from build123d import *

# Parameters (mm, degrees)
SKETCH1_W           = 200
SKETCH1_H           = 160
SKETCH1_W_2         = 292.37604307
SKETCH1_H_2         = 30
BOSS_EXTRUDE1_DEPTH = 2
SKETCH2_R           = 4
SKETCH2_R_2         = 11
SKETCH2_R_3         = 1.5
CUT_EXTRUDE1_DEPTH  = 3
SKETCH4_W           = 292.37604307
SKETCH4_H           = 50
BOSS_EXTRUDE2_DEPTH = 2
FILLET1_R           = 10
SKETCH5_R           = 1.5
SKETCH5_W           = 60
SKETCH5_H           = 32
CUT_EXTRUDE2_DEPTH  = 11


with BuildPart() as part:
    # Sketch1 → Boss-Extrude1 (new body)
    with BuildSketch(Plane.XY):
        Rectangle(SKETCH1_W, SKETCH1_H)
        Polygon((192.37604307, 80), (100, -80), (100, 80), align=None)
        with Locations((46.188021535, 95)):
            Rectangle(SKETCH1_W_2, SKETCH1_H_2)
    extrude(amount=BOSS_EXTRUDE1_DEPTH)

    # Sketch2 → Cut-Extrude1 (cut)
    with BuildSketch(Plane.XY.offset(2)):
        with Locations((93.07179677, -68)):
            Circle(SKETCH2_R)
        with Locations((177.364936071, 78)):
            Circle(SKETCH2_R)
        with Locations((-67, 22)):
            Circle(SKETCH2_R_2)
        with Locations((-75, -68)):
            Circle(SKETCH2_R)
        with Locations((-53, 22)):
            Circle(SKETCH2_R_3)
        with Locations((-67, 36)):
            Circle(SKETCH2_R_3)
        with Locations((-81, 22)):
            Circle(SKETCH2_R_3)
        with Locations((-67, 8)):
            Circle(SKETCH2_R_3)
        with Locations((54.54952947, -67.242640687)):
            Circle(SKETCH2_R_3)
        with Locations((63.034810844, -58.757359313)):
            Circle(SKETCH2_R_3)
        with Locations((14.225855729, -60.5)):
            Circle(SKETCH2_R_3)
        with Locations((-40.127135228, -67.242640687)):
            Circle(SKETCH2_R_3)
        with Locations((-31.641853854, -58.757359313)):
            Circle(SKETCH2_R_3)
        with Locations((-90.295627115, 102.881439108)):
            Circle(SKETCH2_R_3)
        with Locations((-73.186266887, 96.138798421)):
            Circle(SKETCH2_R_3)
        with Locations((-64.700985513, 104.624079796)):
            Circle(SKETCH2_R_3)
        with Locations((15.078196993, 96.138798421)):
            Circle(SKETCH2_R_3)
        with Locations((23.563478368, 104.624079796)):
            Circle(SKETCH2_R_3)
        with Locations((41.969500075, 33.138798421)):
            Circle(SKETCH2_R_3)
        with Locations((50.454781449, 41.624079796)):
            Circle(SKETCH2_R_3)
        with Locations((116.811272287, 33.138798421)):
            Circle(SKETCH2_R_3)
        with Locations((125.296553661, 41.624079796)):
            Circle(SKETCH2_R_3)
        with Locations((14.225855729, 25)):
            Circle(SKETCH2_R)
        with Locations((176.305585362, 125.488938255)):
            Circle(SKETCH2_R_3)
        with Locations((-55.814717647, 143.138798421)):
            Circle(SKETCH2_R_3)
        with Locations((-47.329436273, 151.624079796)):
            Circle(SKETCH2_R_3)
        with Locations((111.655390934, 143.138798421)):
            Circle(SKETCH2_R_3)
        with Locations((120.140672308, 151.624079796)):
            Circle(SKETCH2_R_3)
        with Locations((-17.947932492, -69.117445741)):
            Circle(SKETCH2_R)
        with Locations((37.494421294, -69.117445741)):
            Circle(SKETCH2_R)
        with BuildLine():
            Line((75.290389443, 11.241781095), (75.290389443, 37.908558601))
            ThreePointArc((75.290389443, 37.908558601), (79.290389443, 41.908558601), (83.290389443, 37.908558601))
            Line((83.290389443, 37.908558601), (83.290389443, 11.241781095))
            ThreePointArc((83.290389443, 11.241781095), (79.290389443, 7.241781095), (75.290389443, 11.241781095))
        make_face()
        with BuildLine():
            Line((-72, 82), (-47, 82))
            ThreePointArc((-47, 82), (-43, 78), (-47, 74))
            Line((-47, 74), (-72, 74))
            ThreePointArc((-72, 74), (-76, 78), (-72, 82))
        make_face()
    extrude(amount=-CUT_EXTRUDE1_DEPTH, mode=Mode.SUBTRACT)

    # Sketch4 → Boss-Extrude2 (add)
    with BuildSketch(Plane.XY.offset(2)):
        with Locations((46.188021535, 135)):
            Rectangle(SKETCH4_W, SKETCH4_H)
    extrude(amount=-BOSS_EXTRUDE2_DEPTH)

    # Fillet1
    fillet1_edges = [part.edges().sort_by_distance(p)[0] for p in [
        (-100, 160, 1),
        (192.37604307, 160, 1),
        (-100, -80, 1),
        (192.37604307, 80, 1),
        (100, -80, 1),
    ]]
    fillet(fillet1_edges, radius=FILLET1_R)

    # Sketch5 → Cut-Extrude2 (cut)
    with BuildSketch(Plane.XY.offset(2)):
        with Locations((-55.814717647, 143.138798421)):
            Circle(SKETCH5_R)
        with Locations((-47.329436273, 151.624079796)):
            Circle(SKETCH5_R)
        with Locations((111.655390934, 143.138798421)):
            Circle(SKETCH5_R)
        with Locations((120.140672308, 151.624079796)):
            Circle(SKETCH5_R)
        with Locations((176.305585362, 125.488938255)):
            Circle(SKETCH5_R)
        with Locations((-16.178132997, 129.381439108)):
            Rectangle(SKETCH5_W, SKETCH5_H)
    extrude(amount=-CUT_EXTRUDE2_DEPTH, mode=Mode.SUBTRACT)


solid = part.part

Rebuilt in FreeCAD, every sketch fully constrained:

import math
import FreeCAD as App
import Part
import Sketcher

V = App.Vector
Q = App.Units.Quantity


def edges_at(feature, points):
    """Names of the edges that pass closest to the given points."""
    edges = feature.Shape.Edges
    near = lambda p: min(range(len(edges)), key=lambda i: edges[i].distToShape(Part.Vertex(*p))[0])
    return sorted({f"Edge{near(p) + 1}" for p in points})


def add_polygon(sketch, points):
    """Adds a closed chain of lines whose ends are joined by coincident constraints."""
    first, n = sketch.GeometryCount, len(points)
    for a, b in zip(points, points[1:] + points[:1]):
        sketch.addGeometry(Part.LineSegment(App.Vector(*a, 0), App.Vector(*b, 0)), False)
    for i in range(n):
        sketch.addConstraint(Sketcher.Constraint("Coincident", first + i, 2, first + (i + 1) % n, 1))

doc = App.newDocument("Part")
body = doc.addObject("PartDesign::Body", "Body")

# Sketch on XY plane
sketch1 = doc.addObject("Sketcher::SketchObject", "Sketch")
body.addObject(sketch1)
sketch1.AttachmentSupport = (doc.XY_Plane, [""])
sketch1.MapMode = "FlatFace"
add_polygon(sketch1, [(-100, -80), (100, -80), (192, 80), (192, 110), (-100, 110)])  # lines 0-4
sketch1.addConstraint([
    Sketcher.Constraint("Horizontal", 0),
    Sketcher.Constraint("Vertical", 2),
    Sketcher.Constraint("Horizontal", 3),
    Sketcher.Constraint("Vertical", 4),
    Sketcher.Constraint("DistanceX", 0, 1, 0, 2, Q("200 mm")),
    Sketcher.Constraint("DistanceY", 2, 1, 2, 2, Q("30 mm")),
    Sketcher.Constraint("DistanceY", 4, 2, 4, 1, Q("190 mm")),
    Sketcher.Constraint("Angle", 1, Q("60 deg")),
    Sketcher.Constraint("DistanceX", -1, 1, 0, 2, Q("100 mm")),
    Sketcher.Constraint("DistanceY", 0, 2, -1, 1, Q("80 mm")),
])
pad1 = doc.addObject("PartDesign::Pad", "Pad")
body.addObject(pad1)
pad1.Profile = sketch1
pad1.Length = 2

# Sketch on XY plane
sketch2 = doc.addObject("Sketcher::SketchObject", "Sketch001")
body.addObject(sketch2)
sketch2.AttachmentSupport = (doc.XY_Plane, [""])
sketch2.MapMode = "FlatFace"
sketch2.AttachmentOffset = App.Placement(V(0, 0, 2), App.Rotation())
sketch2.addGeometry([
    Part.Circle(V(93.1, -68, 0), V(0, 0, 1), 4),  # 0
    Part.Circle(V(177.4, 78, 0), V(0, 0, 1), 4),  # 1
    Part.Circle(V(-67, 22, 0), V(0, 0, 1), 11),  # 2
    Part.Circle(V(-75, -68, 0), V(0, 0, 1), 4),  # 3
    Part.Circle(V(-53, 22, 0), V(0, 0, 1), 1.5),  # 4
    Part.Circle(V(-67, 36, 0), V(0, 0, 1), 1.5),  # 5
    Part.Circle(V(-81, 22, 0), V(0, 0, 1), 1.5),  # 6
    Part.Circle(V(-67, 8, 0), V(0, 0, 1), 1.5),  # 7
    Part.Circle(V(54.5, -67.2, 0), V(0, 0, 1), 1.5),  # 8
    Part.Circle(V(63, -58.8, 0), V(0, 0, 1), 1.5),  # 9
    Part.Circle(V(14.2, -60.5, 0), V(0, 0, 1), 1.5),  # 10
    Part.Circle(V(-40.1, -67.2, 0), V(0, 0, 1), 1.5),  # 11
    Part.Circle(V(-31.6, -58.8, 0), V(0, 0, 1), 1.5),  # 12
    Part.Circle(V(-90.3, 102.9, 0), V(0, 0, 1), 1.5),  # 13
    Part.Circle(V(-73.2, 96.1, 0), V(0, 0, 1), 1.5),  # 14
    Part.Circle(V(-64.7, 104.6, 0), V(0, 0, 1), 1.5),  # 15
    Part.Circle(V(15.1, 96.1, 0), V(0, 0, 1), 1.5),  # 16
    Part.Circle(V(23.6, 104.6, 0), V(0, 0, 1), 1.5),  # 17
    Part.Circle(V(42, 33.1, 0), V(0, 0, 1), 1.5),  # 18
    Part.Circle(V(50.5, 41.6, 0), V(0, 0, 1), 1.5),  # 19
    Part.Circle(V(116.8, 33.1, 0), V(0, 0, 1), 1.5),  # 20
    Part.Circle(V(125.3, 41.6, 0), V(0, 0, 1), 1.5),  # 21
    Part.Circle(V(14.2, 25, 0), V(0, 0, 1), 4),  # 22
    Part.Circle(V(176.3, 125.5, 0), V(0, 0, 1), 1.5),  # 23
    Part.Circle(V(-55.8, 143.1, 0), V(0, 0, 1), 1.5),  # 24
    Part.Circle(V(-47.3, 151.6, 0), V(0, 0, 1), 1.5),  # 25
    Part.Circle(V(111.7, 143.1, 0), V(0, 0, 1), 1.5),  # 26
    Part.Circle(V(120.1, 151.6, 0), V(0, 0, 1), 1.5),  # 27
    Part.Circle(V(-17.9, -69.1, 0), V(0, 0, 1), 4),  # 28
    Part.Circle(V(37.5, -69.1, 0), V(0, 0, 1), 4),  # 29
    Part.LineSegment(V(75.3, 37.9, 0), V(75.3, 11.2, 0)),  # 30
    Part.ArcOfCircle(Part.Circle(V(79.3, 11.2, 0), V(0, 0, 1), 4), math.radians(180), math.radians(360)),  # 31
    Part.LineSegment(V(83.3, 11.2, 0), V(83.3, 37.9, 0)),  # 32
    Part.ArcOfCircle(Part.Circle(V(79.3, 37.9, 0), V(0, 0, 1), 4), math.radians(0), math.radians(180)),  # 33
    Part.LineSegment(V(-47, 82, 0), V(-72, 82, 0)),  # 34
    Part.ArcOfCircle(Part.Circle(V(-72, 78, 0), V(0, 0, 1), 4), math.radians(90), math.radians(270)),  # 35
    Part.LineSegment(V(-72, 74, 0), V(-47, 74, 0)),  # 36
    Part.ArcOfCircle(Part.Circle(V(-47, 78, 0), V(0, 0, 1), 4), math.radians(-90), math.radians(90)),  # 37
], False)
sketch2.addConstraint([
    Sketcher.Constraint("Tangent", 30, 2, 31, 1),
    Sketcher.Constraint("Tangent", 31, 2, 32, 1),
    Sketcher.Constraint("Tangent", 32, 2, 33, 1),
    Sketcher.Constraint("Tangent", 33, 2, 30, 1),
    Sketcher.Constraint("Tangent", 34, 2, 35, 1),
    Sketcher.Constraint("Tangent", 35, 2, 36, 1),
    Sketcher.Constraint("Tangent", 36, 2, 37, 1),
    Sketcher.Constraint("Tangent", 37, 2, 34, 1),
    Sketcher.Constraint("Vertical", 30),
    Sketcher.Constraint("Vertical", 32),
    Sketcher.Constraint("Horizontal", 34),
    Sketcher.Constraint("Horizontal", 36),
    Sketcher.Constraint("Equal", 0, 1),
    Sketcher.Constraint("Equal", 1, 3),
    Sketcher.Constraint("Equal", 4, 5),
    Sketcher.Constraint("Equal", 5, 6),
    Sketcher.Constraint("Equal", 6, 7),
    Sketcher.Constraint("Equal", 7, 8),
    Sketcher.Constraint("Equal", 8, 9),
    Sketcher.Constraint("Equal", 9, 10),
    Sketcher.Constraint("Equal", 10, 11),
    Sketcher.Constraint("Equal", 11, 12),
    Sketcher.Constraint("Equal", 12, 13),
    Sketcher.Constraint("Equal", 13, 14),
    Sketcher.Constraint("Equal", 14, 15),
    Sketcher.Constraint("Equal", 15, 16),
    Sketcher.Constraint("Equal", 16, 17),
    Sketcher.Constraint("Equal", 17, 18),
    Sketcher.Constraint("Equal", 18, 19),
    Sketcher.Constraint("Equal", 19, 20),
    Sketcher.Constraint("Equal", 20, 21),
    Sketcher.Constraint("Equal", 3, 22),
    Sketcher.Constraint("Equal", 21, 23),
    Sketcher.Constraint("Equal", 23, 24),
    Sketcher.Constraint("Equal", 24, 25),
    Sketcher.Constraint("Equal", 25, 26),
    Sketcher.Constraint("Equal", 26, 27),
    Sketcher.Constraint("Equal", 22, 28),
    Sketcher.Constraint("Equal", 28, 29),
    Sketcher.Constraint("Equal", 29, 31),
    Sketcher.Constraint("Equal", 33, 35),
    Sketcher.Constraint("Horizontal", 0, 3, 3, 3),
    Sketcher.Constraint("Horizontal", 2, 3, 4, 3),
    Sketcher.Constraint("Horizontal", 4, 3, 6, 3),
    Sketcher.Constraint("Horizontal", 8, 3, 11, 3),
    Sketcher.Constraint("Horizontal", 9, 3, 12, 3),
    Sketcher.Constraint("Horizontal", 14, 3, 16, 3),
    Sketcher.Constraint("Horizontal", 15, 3, 17, 3),
    Sketcher.Constraint("Horizontal", 18, 3, 20, 3),
    Sketcher.Constraint("Horizontal", 19, 3, 21, 3),
    Sketcher.Constraint("Horizontal", 24, 3, 26, 3),
    Sketcher.Constraint("Horizontal", 25, 3, 27, 3),
    Sketcher.Constraint("Horizontal", 28, 3, 29, 3),
    Sketcher.Constraint("Horizontal", 1, 3, 35, 3),
    Sketcher.Constraint("Vertical", 2, 3, 5, 3),
    Sketcher.Constraint("Vertical", 5, 3, 7, 3),
    Sketcher.Constraint("Vertical", 10, 3, 22, 3),
    Sketcher.Constraint("Diameter", 0, Q("8 mm")),
    Sketcher.Constraint("Diameter", 2, Q("22 mm")),
    Sketcher.Constraint("Diameter", 4, Q("3 mm")),
    Sketcher.Constraint("DistanceX", 34, 2, 34, 1, Q("25 mm")),
    Sketcher.Constraint("DistanceY", 0, 3, -1, 1, Q("68 mm")),
    Sketcher.Constraint("DistanceY", -1, 1, 1, 3, Q("78 mm")),
    Sketcher.Constraint("DistanceX", 2, 3, -1, 1, Q("67 mm")),
    Sketcher.Constraint("DistanceY", -1, 1, 2, 3, Q("22 mm")),
    Sketcher.Constraint("DistanceX", 3, 3, -1, 1, Q("75 mm")),
    Sketcher.Constraint("DistanceX", 4, 3, -1, 1, Q("53 mm")),
    Sketcher.Constraint("DistanceY", -1, 1, 5, 3, Q("36 mm")),
    Sketcher.Constraint("DistanceX", 6, 3, -1, 1, Q("81 mm")),
    Sketcher.Constraint("DistanceY", -1, 1, 7, 3, Q("8 mm")),
    Sketcher.Constraint("DistanceY", -1, 1, 22, 3, Q("25 mm")),
    Sketcher.Constraint("DistanceX", 35, 3, -1, 1, Q("72 mm")),
    Sketcher.Constraint("DistanceY", 18, 3, 16, 3, Q("63 mm")),
    Sketcher.Constraint("DistanceY", 19, 3, 17, 3, Q("63 mm")),
    Sketcher.Constraint("DistanceY", 14, 3, 24, 3, Q("47 mm")),
    Sketcher.Constraint("DistanceY", 15, 3, 25, 3, Q("47 mm")),
    Sketcher.Constraint("DistanceY", 10, 3, -1, 1, Q("60.5 mm")),
    Sketcher.Constraint("DistanceY", -1, 1, 14, 3, Q("96.138798 mm")),
    Sketcher.Constraint("DistanceX", -1, 1, 18, 3, Q("41.9695 mm")),
    Sketcher.Constraint("DistanceY", 31, 3, 19, 3, Q("30.382299 mm")),
    Sketcher.Constraint("DistanceY", 30, 2, 30, 1, Q("26.666778 mm")),
    Sketcher.Constraint("DistanceX", -1, 1, 8, 3, Q("54.549529 mm")),
    Sketcher.Constraint("DistanceY", 8, 3, -1, 1, Q("67.242641 mm")),
    Sketcher.Constraint("DistanceX", -1, 1, 9, 3, Q("63.034811 mm")),
    Sketcher.Constraint("DistanceY", 9, 3, -1, 1, Q("58.757359 mm")),
    Sketcher.Constraint("DistanceY", -1, 1, 13, 3, Q("102.881439 mm")),
    Sketcher.Constraint("DistanceY", -1, 1, 15, 3, Q("104.62408 mm")),
    Sketcher.Constraint("DistanceX", -1, 1, 17, 3, Q("23.563478 mm")),
    Sketcher.Constraint("DistanceX", -1, 1, 19, 3, Q("50.454781 mm")),
    Sketcher.Constraint("DistanceY", -1, 1, 23, 3, Q("125.488938 mm")),
    Sketcher.Constraint("DistanceX", -1, 1, 26, 3, Q("111.655391 mm")),
    Sketcher.Constraint("DistanceX", -1, 1, 29, 3, Q("37.494421 mm")),
    Sketcher.Constraint("DistanceX", -1, 1, 31, 3, Q("79.290389 mm")),
    Sketcher.Constraint("DistanceX", 0, 3, 1, 3, Q("84.293139 mm")),
    Sketcher.Constraint("DistanceX", 10, 3, 0, 3, Q("78.845941 mm")),
    Sketcher.Constraint("DistanceX", 11, 3, 10, 3, Q("54.352991 mm")),
    Sketcher.Constraint("DistanceX", 11, 3, 12, 3, Q("8.485281 mm")),
    Sketcher.Constraint("DistanceX", 13, 3, 14, 3, Q("17.10936 mm")),
    Sketcher.Constraint("DistanceX", 14, 3, 15, 3, Q("8.485281 mm")),
    Sketcher.Constraint("DistanceX", 16, 3, 17, 3, Q("8.485281 mm")),
    Sketcher.Constraint("DistanceX", 19, 3, 20, 3, Q("66.356491 mm")),
    Sketcher.Constraint("DistanceX", 20, 3, 21, 3, Q("8.485281 mm")),
    Sketcher.Constraint("DistanceX", 22, 3, 16, 3, Q("0.852341 mm")),
    Sketcher.Constraint("DistanceX", 23, 3, 1, 3, Q("1.059351 mm")),
    Sketcher.Constraint("DistanceX", 14, 3, 24, 3, Q("17.371549 mm")),
    Sketcher.Constraint("DistanceX", 24, 3, 25, 3, Q("8.485281 mm")),
    Sketcher.Constraint("DistanceX", 26, 3, 27, 3, Q("8.485281 mm")),
    Sketcher.Constraint("DistanceX", 12, 3, 28, 3, Q("13.693921 mm")),
    Sketcher.Constraint("DistanceX", 13, 3, -1, 1, Q("90.295627 mm")),
    Sketcher.Constraint("DistanceY", 28, 3, -1, 1, Q("69.117446 mm")),
])
pocket1 = doc.addObject("PartDesign::Pocket", "Pocket")
body.addObject(pocket1)
pocket1.Profile = sketch2
pocket1.Length = 3

# Sketch on XY plane
sketch3 = doc.addObject("Sketcher::SketchObject", "Sketch002")
body.addObject(sketch3)
sketch3.AttachmentSupport = (doc.XY_Plane, [""])
sketch3.MapMode = "FlatFace"
sketch3.AttachmentOffset = App.Placement(V(0, 0, 2), App.Rotation())
add_polygon(sketch3, [(-100, 160), (-100, 110), (192, 110), (192, 160)])  # lines 0-3
sketch3.addConstraint([
    Sketcher.Constraint("Vertical", 0),
    Sketcher.Constraint("Horizontal", 1),
    Sketcher.Constraint("Vertical", 2),
    Sketcher.Constraint("Horizontal", 3),
    Sketcher.Constraint("DistanceY", 0, 2, 0, 1, Q("50 mm")),
    Sketcher.Constraint("DistanceX", 0, 2, -1, 1, Q("100 mm")),
    Sketcher.Constraint("DistanceY", -1, 1, 0, 2, Q("110 mm")),
    Sketcher.Constraint("DistanceX", 1, 1, 1, 2, Q("292.376043 mm")),
])
pad2 = doc.addObject("PartDesign::Pad", "Pad001")
body.addObject(pad2)
pad2.Profile = sketch3
pad2.Length = 2
pad2.Reversed = True
doc.recompute()

fillet = doc.addObject("PartDesign::Fillet", "Fillet")
body.addObject(fillet)
fillet.Base = (pad2, edges_at(pad2, [
    (-100, 160, 1),
    (192.376, 160, 1),
    (-100, -80, 1),
    (192.376, 80, 1),
    (100, -80, 1),
]))
fillet.Radius = 10

# Sketch on XY plane
sketch4 = doc.addObject("Sketcher::SketchObject", "Sketch003")
body.addObject(sketch4)
sketch4.AttachmentSupport = (doc.XY_Plane, [""])
sketch4.MapMode = "FlatFace"
sketch4.AttachmentOffset = App.Placement(V(0, 0, 2), App.Rotation())
sketch4.addGeometry(Part.Circle(V(-55.8, 143.1, 0), V(0, 0, 1), 1.5), False)  # 0
sketch4.addGeometry(Part.Circle(V(-47.3, 151.6, 0), V(0, 0, 1), 1.5), False)  # 1
sketch4.addGeometry(Part.Circle(V(111.7, 143.1, 0), V(0, 0, 1), 1.5), False)  # 2
sketch4.addGeometry(Part.Circle(V(120.1, 151.6, 0), V(0, 0, 1), 1.5), False)  # 3
sketch4.addGeometry(Part.Circle(V(176.3, 125.5, 0), V(0, 0, 1), 1.5), False)  # 4
add_polygon(sketch4, [(-46.2, 145.4), (-46.2, 113.4), (13.8, 113.4), (13.8, 145.4)])  # lines 5-8
sketch4.addConstraint([
    Sketcher.Constraint("Vertical", 5),
    Sketcher.Constraint("Horizontal", 6),
    Sketcher.Constraint("Vertical", 7),
    Sketcher.Constraint("Horizontal", 8),
    Sketcher.Constraint("Equal", 0, 1),
    Sketcher.Constraint("Equal", 1, 2),
    Sketcher.Constraint("Equal", 2, 3),
    Sketcher.Constraint("Equal", 3, 4),
    Sketcher.Constraint("Horizontal", 0, 3, 2, 3),
    Sketcher.Constraint("Horizontal", 1, 3, 3, 3),
    Sketcher.Constraint("Diameter", 0, Q("3 mm")),
    Sketcher.Constraint("DistanceX", 6, 1, 6, 2, Q("60 mm")),
    Sketcher.Constraint("DistanceY", 5, 2, 5, 1, Q("32 mm")),
    Sketcher.Constraint("DistanceY", -1, 1, 0, 3, Q("143.138798 mm")),
    Sketcher.Constraint("DistanceY", 5, 2, 4, 3, Q("12.107499 mm")),
    Sketcher.Constraint("DistanceY", -1, 1, 1, 3, Q("151.62408 mm")),
    Sketcher.Constraint("DistanceX", -1, 1, 2, 3, Q("111.655391 mm")),
    Sketcher.Constraint("DistanceY", -1, 1, 4, 3, Q("125.488938 mm")),
    Sketcher.Constraint("DistanceX", 0, 3, 1, 3, Q("8.485281 mm")),
    Sketcher.Constraint("DistanceX", 0, 3, 2, 3, Q("167.470109 mm")),
    Sketcher.Constraint("DistanceX", 2, 3, 3, 3, Q("8.485281 mm")),
    Sketcher.Constraint("DistanceX", 1, 3, 4, 3, Q("223.635022 mm")),
    Sketcher.Constraint("DistanceX", 5, 2, 4, 3, Q("222.483718 mm")),
])
pocket2 = doc.addObject("PartDesign::Pocket", "Pocket001")
body.addObject(pocket2)
pocket2.Profile = sketch4
pocket2.Length = 11

doc.recompute()
